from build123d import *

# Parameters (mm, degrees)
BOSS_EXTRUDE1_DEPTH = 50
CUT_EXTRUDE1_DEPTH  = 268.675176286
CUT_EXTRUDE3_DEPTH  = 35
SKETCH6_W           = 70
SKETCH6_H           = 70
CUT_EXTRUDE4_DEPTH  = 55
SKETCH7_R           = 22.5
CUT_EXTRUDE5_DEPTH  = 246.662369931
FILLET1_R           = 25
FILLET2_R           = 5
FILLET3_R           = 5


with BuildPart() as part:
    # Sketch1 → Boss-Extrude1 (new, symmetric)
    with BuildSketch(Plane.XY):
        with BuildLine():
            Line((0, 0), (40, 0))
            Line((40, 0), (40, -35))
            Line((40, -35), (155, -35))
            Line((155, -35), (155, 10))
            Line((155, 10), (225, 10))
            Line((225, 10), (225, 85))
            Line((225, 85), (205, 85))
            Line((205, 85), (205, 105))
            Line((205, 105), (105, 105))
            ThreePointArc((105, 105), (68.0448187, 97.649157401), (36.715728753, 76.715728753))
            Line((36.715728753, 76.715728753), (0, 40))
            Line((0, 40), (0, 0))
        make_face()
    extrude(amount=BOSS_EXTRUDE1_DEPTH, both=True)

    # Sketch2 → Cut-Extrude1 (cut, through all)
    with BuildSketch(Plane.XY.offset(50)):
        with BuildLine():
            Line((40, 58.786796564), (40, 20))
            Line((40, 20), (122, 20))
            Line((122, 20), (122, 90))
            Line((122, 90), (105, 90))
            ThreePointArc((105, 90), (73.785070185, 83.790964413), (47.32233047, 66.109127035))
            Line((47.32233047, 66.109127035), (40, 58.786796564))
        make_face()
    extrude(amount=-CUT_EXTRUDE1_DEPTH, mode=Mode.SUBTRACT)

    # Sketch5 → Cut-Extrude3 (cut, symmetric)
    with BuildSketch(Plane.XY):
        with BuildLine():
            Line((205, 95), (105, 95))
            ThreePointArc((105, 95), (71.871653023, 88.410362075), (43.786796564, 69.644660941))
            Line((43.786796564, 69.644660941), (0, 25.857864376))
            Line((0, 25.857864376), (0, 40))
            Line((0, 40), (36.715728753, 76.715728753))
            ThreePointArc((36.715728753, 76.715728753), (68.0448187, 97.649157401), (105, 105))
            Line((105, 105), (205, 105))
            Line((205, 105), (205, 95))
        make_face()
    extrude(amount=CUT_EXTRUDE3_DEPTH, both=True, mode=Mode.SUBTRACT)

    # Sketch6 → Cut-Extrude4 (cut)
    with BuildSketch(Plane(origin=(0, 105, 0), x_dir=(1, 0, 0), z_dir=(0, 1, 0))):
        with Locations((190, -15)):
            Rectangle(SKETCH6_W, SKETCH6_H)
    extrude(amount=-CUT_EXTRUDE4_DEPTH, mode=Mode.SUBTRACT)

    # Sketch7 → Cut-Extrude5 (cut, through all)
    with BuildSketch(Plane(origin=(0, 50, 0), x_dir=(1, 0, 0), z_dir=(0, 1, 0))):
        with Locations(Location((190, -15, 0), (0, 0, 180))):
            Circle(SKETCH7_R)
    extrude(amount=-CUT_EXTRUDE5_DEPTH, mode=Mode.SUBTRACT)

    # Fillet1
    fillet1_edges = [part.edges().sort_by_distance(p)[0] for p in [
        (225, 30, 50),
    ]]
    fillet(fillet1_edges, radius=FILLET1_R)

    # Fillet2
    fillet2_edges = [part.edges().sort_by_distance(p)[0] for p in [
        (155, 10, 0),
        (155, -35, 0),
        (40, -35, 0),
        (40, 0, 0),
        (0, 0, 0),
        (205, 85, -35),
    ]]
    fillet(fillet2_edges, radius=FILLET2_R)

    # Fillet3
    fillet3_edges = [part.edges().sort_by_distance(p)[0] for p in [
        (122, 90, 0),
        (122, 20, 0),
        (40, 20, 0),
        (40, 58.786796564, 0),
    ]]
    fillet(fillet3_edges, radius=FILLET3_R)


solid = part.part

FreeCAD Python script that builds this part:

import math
import FreeCAD as App
import Part
import Sketcher

V = App.Vector
Q = App.Units.Quantity


def edges_at(feature, points):
    """Names of the edges that pass closest to the given points."""
    edges = feature.Shape.Edges
    near = lambda p: min(range(len(edges)), key=lambda i: edges[i].distToShape(Part.Vertex(*p))[0])
    return sorted({f"Edge{near(p) + 1}" for p in points})


def add_polygon(sketch, points):
    """Adds a closed chain of lines whose ends are joined by coincident constraints."""
    first, n = sketch.GeometryCount, len(points)
    for a, b in zip(points, points[1:] + points[:1]):
        sketch.addGeometry(Part.LineSegment(App.Vector(*a, 0), App.Vector(*b, 0)), False)
    for i in range(n):
        sketch.addConstraint(Sketcher.Constraint("Coincident", first + i, 2, first + (i + 1) % n, 1))

doc = App.newDocument("Part")
body = doc.addObject("PartDesign::Body", "Body")

# Sketch on XY plane
sketch1 = body.newObject("Sketcher::SketchObject", "Sketch")
sketch1.AttachmentSupport = (doc.getObject("XY_Plane"), [""])
sketch1.MapMode = "FlatFace"
sketch1.addGeometry([
    Part.LineSegment(V(0, 0, 0), V(40, 0, 0)),  # 0
    Part.LineSegment(V(40, 0, 0), V(40, -35, 0)),  # 1
    Part.LineSegment(V(40, -35, 0), V(155, -35, 0)),  # 2
    Part.LineSegment(V(155, -35, 0), V(155, 10, 0)),  # 3
    Part.LineSegment(V(155, 10, 0), V(225, 10, 0)),  # 4
    Part.LineSegment(V(225, 10, 0), V(225, 85, 0)),  # 5
    Part.LineSegment(V(225, 85, 0), V(205, 85, 0)),  # 6
    Part.LineSegment(V(205, 85, 0), V(205, 105, 0)),  # 7
    Part.LineSegment(V(205, 105, 0), V(105, 105, 0)),  # 8
    Part.ArcOfCircle(Part.Circle(V(105, 8, 0), V(0, 0, 1), 97), math.radians(90), math.radians(135)),  # 9
    Part.LineSegment(V(37, 77, 0), V(0, 40, 0)),  # 10
    Part.LineSegment(V(0, 40, 0), V(0, 0, 0)),  # 11
], False)
sketch1.addConstraint([
    Sketcher.Constraint("Coincident", 0, 2, 1, 1),
    Sketcher.Constraint("Coincident", 1, 2, 2, 1),
    Sketcher.Constraint("Coincident", 2, 2, 3, 1),
    Sketcher.Constraint("Coincident", 3, 2, 4, 1),
    Sketcher.Constraint("Coincident", 4, 2, 5, 1),
    Sketcher.Constraint("Coincident", 5, 2, 6, 1),
    Sketcher.Constraint("Coincident", 6, 2, 7, 1),
    Sketcher.Constraint("Coincident", 7, 2, 8, 1),
    Sketcher.Constraint("Tangent", 8, 2, 9, 1),
    Sketcher.Constraint("Tangent", 9, 2, 10, 1),
    Sketcher.Constraint("Coincident", 10, 2, 11, 1),
    Sketcher.Constraint("Coincident", 11, 2, 0, 1),
    Sketcher.Constraint("Horizontal", 0),
    Sketcher.Constraint("Vertical", 1),
    Sketcher.Constraint("Horizontal", 2),
    Sketcher.Constraint("Vertical", 3),
    Sketcher.Constraint("Horizontal", 4),
    Sketcher.Constraint("Vertical", 5),
    Sketcher.Constraint("Horizontal", 6),
    Sketcher.Constraint("Vertical", 7),
    Sketcher.Constraint("Horizontal", 8),
    Sketcher.Constraint("Vertical", 11),
    Sketcher.Constraint("Coincident", 11, 2, -1, 1),
    Sketcher.Constraint("Equal", 6, 7),
    Sketcher.Constraint("Equal", 0, 11),
    Sketcher.Constraint("DistanceX", 0, 1, 0, 2, 40.0),
    Sketcher.Constraint("DistanceX", 2, 1, 2, 2, 115.0),
    Sketcher.Constraint("DistanceX", 4, 1, 4, 2, 70.0),
    Sketcher.Constraint("DistanceX", 6, 2, 6, 1, 20.0),
    Sketcher.Constraint("DistanceX", 8, 2, 8, 1, 100.0),
    Sketcher.Constraint("DistanceY", 1, 2, 1, 1, 35.0),
    Sketcher.Constraint("DistanceY", 3, 1, 3, 2, 45.0),
    Sketcher.Constraint("DistanceY", 5, 1, 5, 2, 75.0),
    Sketcher.Constraint("Angle", 10, Q("-135 deg")),
])
pad1 = body.newObject("PartDesign::Pad", "Pad")
pad1.Profile = sketch1
pad1.Length = 100
pad1.Midplane = True

# Sketch on XY plane
sketch2 = body.newObject("Sketcher::SketchObject", "Sketch001")
sketch2.AttachmentSupport = (doc.getObject("XY_Plane"), [""])
sketch2.MapMode = "FlatFace"
sketch2.AttachmentOffset = App.Placement(V(0, 0, 50), App.Rotation())
sketch2.addGeometry([
    Part.LineSegment(V(40, 59, 0), V(40, 20, 0)),  # 0
    Part.LineSegment(V(40, 20, 0), V(122, 20, 0)),  # 1
    Part.LineSegment(V(122, 20, 0), V(122, 90, 0)),  # 2
    Part.LineSegment(V(122, 90, 0), V(105, 90, 0)),  # 3
    Part.ArcOfCircle(Part.Circle(V(105, 8, 0), V(0, 0, 1), 82), math.radians(90), math.radians(135)),  # 4
    Part.LineSegment(V(47, 66, 0), V(40, 59, 0)),  # 5
], False)
sketch2.addConstraint([
    Sketcher.Constraint("Coincident", 0, 2, 1, 1),
    Sketcher.Constraint("Coincident", 1, 2, 2, 1),
    Sketcher.Constraint("Coincident", 2, 2, 3, 1),
    Sketcher.Constraint("Tangent", 3, 2, 4, 1),
    Sketcher.Constraint("Tangent", 4, 2, 5, 1),
    Sketcher.Constraint("Coincident", 5, 2, 0, 1),
    Sketcher.Constraint("Vertical", 0),
    Sketcher.Constraint("Horizontal", 1),
    Sketcher.Constraint("Vertical", 2),
    Sketcher.Constraint("Horizontal", 3),
    Sketcher.Constraint("DistanceX", 1, 1, 1, 2, 82.0),
    Sketcher.Constraint("DistanceX", 3, 2, 3, 1, 17.0),
    Sketcher.Constraint("DistanceY", 2, 1, 2, 2, 70.0),
    Sketcher.Constraint("Angle", 5, Q("-135 deg")),
    Sketcher.Constraint("DistanceX", -1, 1, 4, 3, 105.0),
    Sketcher.Constraint("DistanceY", -1, 1, 0, 2, 20.0),
    Sketcher.Constraint("Radius", 4, 81.568542),
])
pocket1 = body.newObject("PartDesign::Pocket", "Pocket")
pocket1.Profile = sketch2
pocket1.Type = "ThroughAll"

# Sketch on XY plane
sketch3 = body.newObject("Sketcher::SketchObject", "Sketch002")
sketch3.AttachmentSupport = (doc.getObject("XY_Plane"), [""])
sketch3.MapMode = "FlatFace"
sketch3.addGeometry([
    Part.LineSegment(V(105, 95, 0), V(205, 95, 0)),  # 0
    Part.LineSegment(V(205, 95, 0), V(205, 105, 0)),  # 1
    Part.LineSegment(V(205, 105, 0), V(105, 105, 0)),  # 2
    Part.ArcOfCircle(Part.Circle(V(105, 8, 0), V(0, 0, 1), 97), math.radians(90), math.radians(135)),  # 3
    Part.LineSegment(V(37, 77, 0), V(0, 40, 0)),  # 4
    Part.LineSegment(V(0, 40, 0), V(0, 26, 0)),  # 5
    Part.LineSegment(V(0, 26, 0), V(44, 70, 0)),  # 6
    Part.ArcOfCircle(Part.Circle(V(105, 8, 0), V(0, 0, 1), 87), math.radians(90), math.radians(135)),  # 7
], False)
sketch3.addConstraint([
    Sketcher.Constraint("Coincident", 0, 2, 1, 1),
    Sketcher.Constraint("Coincident", 1, 2, 2, 1),
    Sketcher.Constraint("Tangent", 2, 2, 3, 1),
    Sketcher.Constraint("Tangent", 3, 2, 4, 1),
    Sketcher.Constraint("Coincident", 4, 2, 5, 1),
    Sketcher.Constraint("Coincident", 5, 2, 6, 1),
    Sketcher.Constraint("Tangent", 6, 2, 7, 2),
    Sketcher.Constraint("Tangent", 7, 1, 0, 1),
    Sketcher.Constraint("Horizontal", 0),
    Sketcher.Constraint("Vertical", 1),
    Sketcher.Constraint("Horizontal", 2),
    Sketcher.Constraint("Vertical", 5),
    Sketcher.Constraint("Coincident", 7, 3, 3, 3),
    Sketcher.Constraint("PointOnObject", 4, 2, -2),
    Sketcher.Constraint("Parallel", 4, 6),
    Sketcher.Constraint("DistanceX", 0, 1, 0, 2, 100.0),
    Sketcher.Constraint("DistanceY", 1, 1, 1, 2, 10.0),
    Sketcher.Constraint("Angle", 4, Q("-135 deg")),
    Sketcher.Constraint("DistanceX", -1, 1, 3, 3, 105.0),
    Sketcher.Constraint("DistanceY", -1, 1, 0, 2, 95.0),
    Sketcher.Constraint("DistanceY", -1, 1, 4, 2, 40.0),
])
pocket2 = body.newObject("PartDesign::Pocket", "Pocket001")
pocket2.Profile = sketch3
pocket2.Length = 70
pocket2.Midplane = True

# Sketch on XZ plane
sketch4 = body.newObject("Sketcher::SketchObject", "Sketch003")
sketch4.AttachmentSupport = (doc.getObject("XZ_Plane"), [""])
sketch4.MapMode = "FlatFace"
sketch4.AttachmentOffset = App.Placement(V(0, 0, -105), App.Rotation())
add_polygon(sketch4, [(155, -20), (155, 50), (225, 50), (225, -20)])  # lines 0-3
sketch4.addConstraint([
    Sketcher.Constraint("Vertical", 0),
    Sketcher.Constraint("Horizontal", 1),
    Sketcher.Constraint("Vertical", 2),
    Sketcher.Constraint("Horizontal", 3),
    Sketcher.Constraint("Equal", 3, 0),
    Sketcher.Constraint("DistanceX", 1, 1, 1, 2, 70.0),
    Sketcher.Constraint("DistanceX", -1, 1, 0, 2, 155.0),
    Sketcher.Constraint("DistanceY", -1, 1, 0, 2, 50.0),
])
pocket3 = body.newObject("PartDesign::Pocket", "Pocket002")
pocket3.Profile = sketch4
pocket3.Length = 55
pocket3.Reversed = True

# Sketch on XZ plane
sketch5 = body.newObject("Sketcher::SketchObject", "Sketch004")
sketch5.AttachmentSupport = (doc.getObject("XZ_Plane"), [""])
sketch5.MapMode = "FlatFace"
sketch5.AttachmentOffset = App.Placement(V(0, 0, -50), App.Rotation())
sketch5.addGeometry(Part.Circle(V(190, 15, 0), V(0, 0, 1), 22), False)
sketch5.addConstraint([
    Sketcher.Constraint("Diameter", 0, 45.0),
    Sketcher.Constraint("DistanceX", -1, 1, 0, 3, 190.0),
    Sketcher.Constraint("DistanceY", -1, 1, 0, 3, 15.0),
])
pocket4 = body.newObject("PartDesign::Pocket", "Pocket003")
pocket4.Profile = sketch5
pocket4.Type = "ThroughAll"
pocket4.Reversed = True
doc.recompute()

fillet = body.newObject("PartDesign::Fillet", "Fillet")
fillet.Base = (pocket4, edges_at(pocket4, [(225, 30, 50)]))
fillet.Radius = 25
doc.recompute()

fillet2 = body.newObject("PartDesign::Fillet", "Fillet001")
fillet2.Base = (fillet, edges_at(fillet, [
    (155, 10, 0),
    (155, -35, 0),
    (40, -35, 0),
    (40, 0, 0),
    (0, 0, 0),
    (205, 85, -35),
]))
fillet2.Radius = 5
doc.recompute()

fillet3 = body.newObject("PartDesign::Fillet", "Fillet002")
fillet3.Base = (fillet2, edges_at(fillet2, [
    (122, 90, 0),
    (122, 20, 0),
    (40, 20, 0),
    (40, 58.787, 0),
]))
fillet3.Radius = 5

doc.recompute()
